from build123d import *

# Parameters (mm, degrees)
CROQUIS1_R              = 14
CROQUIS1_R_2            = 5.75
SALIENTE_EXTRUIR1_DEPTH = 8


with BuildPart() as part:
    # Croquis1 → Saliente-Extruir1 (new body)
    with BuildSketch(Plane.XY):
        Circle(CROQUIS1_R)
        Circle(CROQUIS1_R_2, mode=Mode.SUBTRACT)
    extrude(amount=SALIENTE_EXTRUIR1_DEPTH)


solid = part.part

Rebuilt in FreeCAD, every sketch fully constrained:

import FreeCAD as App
import Part
import Sketcher
from FreeCAD import Vector
Q = App.Units.Quantity

doc = App.newDocument("Part")
body = doc.addObject("PartDesign::Body", "Body")

# Sketch on XY plane
sketch1 = body.newObject("Sketcher::SketchObject", "Sketch")
sketch1.AttachmentSupport = (doc.getObject("XY_Plane"), [""])
sketch1.MapMode = "FlatFace"
sketch1.addGeometry([
    Part.Circle(Vector(0, 0, 0), Vector(0, 0, 1), 14),
    Part.Circle(Vector(0, 0, 0), Vector(0, 0, 1), 6),
], False)
sketch1.addConstraint([
    Sketcher.Constraint("Coincident", 0, 3, -1, 1),
    Sketcher.Constraint("Coincident", 1, 3, -1, 1),
    Sketcher.Constraint("Diameter", 0, Q("28 mm")),
    Sketcher.Constraint("Diameter", 1, Q("11.5 mm")),
])
pad1 = body.newObject("PartDesign::Pad", "Pad")
pad1.Profile = sketch1
pad1.Length = 8

doc.recompute()
